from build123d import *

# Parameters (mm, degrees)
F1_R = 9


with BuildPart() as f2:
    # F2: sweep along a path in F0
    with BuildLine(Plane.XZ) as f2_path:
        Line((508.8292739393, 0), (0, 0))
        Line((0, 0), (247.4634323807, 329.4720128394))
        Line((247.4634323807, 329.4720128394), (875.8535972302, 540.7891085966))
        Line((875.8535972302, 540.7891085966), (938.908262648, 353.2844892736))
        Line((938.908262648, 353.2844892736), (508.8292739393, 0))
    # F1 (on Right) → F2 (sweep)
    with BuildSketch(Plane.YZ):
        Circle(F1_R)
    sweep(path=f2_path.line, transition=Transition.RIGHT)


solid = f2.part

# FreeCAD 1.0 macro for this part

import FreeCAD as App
import Part
import Sketcher

V = App.Vector
Q = App.Units.Quantity

doc = App.newDocument("Part")
body = doc.addObject("PartDesign::Body", "Body")

# Sketch on YZ plane
sketch1 = body.newObject("Sketcher::SketchObject", "Sketch")
sketch1.AttachmentSupport = (doc.getObject("YZ_Plane"), [""])
sketch1.MapMode = "FlatFace"
sketch1.addGeometry(Part.Circle(V(0, 0, 0), V(0, 0, 1), 9), False)
sketch1.addConstraint([
    Sketcher.Constraint("Coincident", 0, 3, -1, 1),
    Sketcher.Constraint("Diameter", 0, Q("18 mm")),
])

# Sketch on XZ plane
sketch2 = body.newObject("Sketcher::SketchObject", "Sketch001")
sketch2.AttachmentSupport = (doc.getObject("XZ_Plane"), [""])
sketch2.MapMode = "FlatFace"
sketch2.addGeometry([
    Part.LineSegment(V(508.829274, 0, 0), V(0, 0, 0)),  # 0
    Part.LineSegment(V(0, 0, 0), V(247.463432, 329.472013, 0)),  # 1
    Part.LineSegment(V(247.463432, 329.472013, 0), V(875.853597, 540.789109, 0)),  # 2
    Part.LineSegment(V(875.853597, 540.789109, 0), V(938.908263, 353.284489, 0)),  # 3
    Part.LineSegment(V(938.908263, 353.284489, 0), V(508.829274, 0, 0)),  # 4
], False)
sketch2.addConstraint([
    Sketcher.Constraint("Coincident", 0, 2, 1, 1),
    Sketcher.Constraint("Coincident", 1, 2, 2, 1),
    Sketcher.Constraint("Coincident", 2, 2, 3, 1),
    Sketcher.Constraint("Coincident", 3, 2, 4, 1),
    Sketcher.Constraint("Coincident", 4, 2, 0, 1),
    Sketcher.Constraint("Horizontal", 0),
    Sketcher.Constraint("Coincident", 0, 2, -1, 1),
    Sketcher.Constraint("Perpendicular", 2, 3),
    Sketcher.Constraint("Distance", 1, Q("412.05577 mm")),
    Sketcher.Constraint("Distance", 2, Q("662.96992 mm")),
    Sketcher.Constraint("Distance", 4, Q("556.576919 mm")),
    Sketcher.Constraint("DistanceX", 0, 2, 0, 1, Q("508.829274 mm")),
    Sketcher.Constraint("DistanceY", -1, 1, 2, 2, Q("540.789109 mm")),
    Sketcher.Constraint("DistanceY", -1, 1, 3, 2, Q("353.284489 mm")),
])
doc.recompute()

additivepipe = body.newObject("PartDesign::AdditivePipe", "AdditivePipe")
additivepipe.Profile = sketch1
additivepipe.Spine = (sketch2, ["Edge1", "Edge2", "Edge3", "Edge4", "Edge5"])
additivepipe.Transition = "Right corner"

doc.recompute()
